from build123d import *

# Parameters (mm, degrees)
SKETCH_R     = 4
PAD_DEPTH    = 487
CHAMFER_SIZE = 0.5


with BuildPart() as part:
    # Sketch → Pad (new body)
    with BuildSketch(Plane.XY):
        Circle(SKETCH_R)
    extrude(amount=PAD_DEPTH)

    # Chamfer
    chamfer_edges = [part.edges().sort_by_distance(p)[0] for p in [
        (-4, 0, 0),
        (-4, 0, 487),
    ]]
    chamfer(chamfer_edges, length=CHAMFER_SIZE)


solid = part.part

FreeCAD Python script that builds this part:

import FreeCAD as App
import Part
import Sketcher
from FreeCAD import Vector


def edges_at(feature, points):
    """Names of the edges that pass closest to the given points."""
    edges = feature.Shape.Edges
    near = lambda p: min(range(len(edges)), key=lambda i: edges[i].distToShape(Part.Vertex(*p))[0])
    return sorted({f"Edge{near(p) + 1}" for p in points})

doc = App.newDocument("Part")
params = doc.addObject("Spreadsheet::Sheet", "Params")
for row, (alias, value) in enumerate([
    ("sketch1_diameter", "8 mm"),
    ("pad1_length", "487 mm"),
    ("chamfer_size", "0.5 mm"),
], start=1):
    params.set(f"A{row}", alias)
    params.set(f"B{row}", "=" + value)
    params.setAlias(f"B{row}", alias)

body = doc.addObject("PartDesign::Body", "Body")

# Sketch on XY plane
sketch1 = body.newObject("Sketcher::SketchObject", "Sketch")
sketch1.AttachmentSupport = (doc.getObject("XY_Plane"), [""])
sketch1.MapMode = "FlatFace"
sketch1.addGeometry(Part.Circle(Vector(0, 0, 0), Vector(0, 0, 1), 4), False)
sketch1.addConstraint([
    Sketcher.Constraint("Coincident", 0, 3, -1, 1),
    Sketcher.Constraint("Diameter", 0, 8.0),
])
sketch1.setExpression("Constraints[1]", "Params.sketch1_diameter")
pad1 = body.newObject("PartDesign::Pad", "Pad")
pad1.Profile = sketch1
pad1.setExpression("Length", "Params.pad1_length")
doc.recompute()

chamfer = body.newObject("PartDesign::Chamfer", "Chamfer")
chamfer.Base = (pad1, edges_at(pad1, [(-4, 0, 0), (-4, 0, 487)]))
chamfer.setExpression("Size", "Params.chamfer_size")

doc.recompute()
